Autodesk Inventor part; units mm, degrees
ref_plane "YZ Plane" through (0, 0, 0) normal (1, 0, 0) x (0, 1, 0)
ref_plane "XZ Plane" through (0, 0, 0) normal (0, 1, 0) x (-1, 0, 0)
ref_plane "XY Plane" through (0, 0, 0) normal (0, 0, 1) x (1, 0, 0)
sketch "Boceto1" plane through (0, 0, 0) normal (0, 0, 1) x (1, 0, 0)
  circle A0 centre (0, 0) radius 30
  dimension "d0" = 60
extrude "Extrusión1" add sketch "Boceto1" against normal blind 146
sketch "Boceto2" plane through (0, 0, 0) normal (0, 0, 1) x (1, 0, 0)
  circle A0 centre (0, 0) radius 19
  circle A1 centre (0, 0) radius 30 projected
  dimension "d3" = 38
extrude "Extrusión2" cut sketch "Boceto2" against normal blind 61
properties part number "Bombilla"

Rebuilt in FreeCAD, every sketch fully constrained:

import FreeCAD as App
import Part
import Sketcher

V = App.Vector
Q = App.Units.Quantity

doc = App.newDocument("Part")
body = doc.addObject("PartDesign::Body", "Body")

# Sketch on XY plane
sketch1 = body.newObject("Sketcher::SketchObject", "Sketch")
sketch1.AttachmentSupport = (doc.getObject("XY_Plane"), [""])
sketch1.MapMode = "FlatFace"
sketch1.addGeometry(Part.Circle(V(0, 0, 0), V(0, 0, 1), 30), False)
sketch1.addConstraint([
    Sketcher.Constraint("Coincident", 0, 3, -1, 1),
    Sketcher.Constraint("Diameter", 0, Q("60 mm")),
])
pad1 = body.newObject("PartDesign::Pad", "Pad")
pad1.Profile = sketch1
pad1.Length = 146
pad1.Reversed = True

# Sketch on XY plane
sketch2 = body.newObject("Sketcher::SketchObject", "Sketch001")
sketch2.AttachmentSupport = (doc.getObject("XY_Plane"), [""])
sketch2.MapMode = "FlatFace"
sketch2.addGeometry([
    Part.Circle(V(0, 0, 0), V(0, 0, 1), 30),
    Part.Circle(V(0, 0, 0), V(0, 0, 1), 19),
], False)
sketch2.addConstraint([
    Sketcher.Constraint("Coincident", 0, 3, -1, 1),
    Sketcher.Constraint("Coincident", 1, 3, -1, 1),
    Sketcher.Constraint("Diameter", 1, Q("38 mm")),
    Sketcher.Constraint("Diameter", 0, Q("60 mm")),
])
pocket1 = body.newObject("PartDesign::Pocket", "Pocket")
pocket1.Profile = sketch2
pocket1.Length = 61

doc.recompute()
